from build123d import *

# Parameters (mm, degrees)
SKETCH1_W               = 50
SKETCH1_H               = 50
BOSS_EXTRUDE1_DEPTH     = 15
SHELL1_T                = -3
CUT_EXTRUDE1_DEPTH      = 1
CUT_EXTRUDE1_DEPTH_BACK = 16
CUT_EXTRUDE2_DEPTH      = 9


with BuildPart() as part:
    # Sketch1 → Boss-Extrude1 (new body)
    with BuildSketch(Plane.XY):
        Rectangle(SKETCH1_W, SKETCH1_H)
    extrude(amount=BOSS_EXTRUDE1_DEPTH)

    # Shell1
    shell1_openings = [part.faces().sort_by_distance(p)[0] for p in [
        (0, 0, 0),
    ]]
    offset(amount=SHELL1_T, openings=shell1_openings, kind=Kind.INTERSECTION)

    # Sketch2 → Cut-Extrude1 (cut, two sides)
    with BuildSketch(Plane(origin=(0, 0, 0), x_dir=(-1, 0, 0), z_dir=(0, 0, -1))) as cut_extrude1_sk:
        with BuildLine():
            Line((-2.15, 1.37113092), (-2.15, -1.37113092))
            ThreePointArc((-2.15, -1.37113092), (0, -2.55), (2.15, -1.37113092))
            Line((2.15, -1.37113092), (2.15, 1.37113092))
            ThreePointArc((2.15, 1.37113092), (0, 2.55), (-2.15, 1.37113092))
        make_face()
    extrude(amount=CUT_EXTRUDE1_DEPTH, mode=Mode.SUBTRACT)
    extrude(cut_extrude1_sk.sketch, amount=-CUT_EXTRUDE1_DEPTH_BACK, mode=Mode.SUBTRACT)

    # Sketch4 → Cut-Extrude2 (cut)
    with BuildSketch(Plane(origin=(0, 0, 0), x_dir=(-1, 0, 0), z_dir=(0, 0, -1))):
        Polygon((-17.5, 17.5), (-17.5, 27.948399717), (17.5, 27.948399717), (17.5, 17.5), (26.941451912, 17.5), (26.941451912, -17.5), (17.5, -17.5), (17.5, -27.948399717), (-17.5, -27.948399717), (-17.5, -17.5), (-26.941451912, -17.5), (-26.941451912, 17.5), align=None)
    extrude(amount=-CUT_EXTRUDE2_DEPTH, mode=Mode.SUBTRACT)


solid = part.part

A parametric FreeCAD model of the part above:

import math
import FreeCAD as App
import Part
import Sketcher
from FreeCAD import Vector
Q = App.Units.Quantity


def faces_at(feature, points):
    """Names of the faces that lie closest to the given points."""
    faces = feature.Shape.Faces
    near = lambda p: min(range(len(faces)), key=lambda i: faces[i].distToShape(Part.Vertex(*p))[0])
    return sorted({f"Face{near(p) + 1}" for p in points})


def add_polygon(sketch, points):
    """Adds a closed chain of lines whose ends are joined by coincident constraints."""
    first, n = sketch.GeometryCount, len(points)
    for a, b in zip(points, points[1:] + points[:1]):
        sketch.addGeometry(Part.LineSegment(App.Vector(*a, 0), App.Vector(*b, 0)), False)
    for i in range(n):
        sketch.addConstraint(Sketcher.Constraint("Coincident", first + i, 2, first + (i + 1) % n, 1))

doc = App.newDocument("Part")
body = doc.addObject("PartDesign::Body", "Body")

# Sketch on XY plane
sketch1 = body.newObject("Sketcher::SketchObject", "Sketch")
sketch1.AttachmentSupport = (doc.getObject("XY_Plane"), [""])
sketch1.MapMode = "FlatFace"
add_polygon(sketch1, [(-25, 25), (-25, -25), (25, -25), (25, 25)])  # lines 0-3
sketch1.addConstraint([
    Sketcher.Constraint("Vertical", 0),
    Sketcher.Constraint("Horizontal", 1),
    Sketcher.Constraint("Vertical", 2),
    Sketcher.Constraint("Horizontal", 3),
    Sketcher.Constraint("Symmetric", 0, 2, 2, 2, -1, 1),
    Sketcher.Constraint("Equal", 3, 0),
    Sketcher.Constraint("DistanceX", 1, 1, 1, 2, Q("50 mm")),
])
pad1 = body.newObject("PartDesign::Pad", "Pad")
pad1.Profile = sketch1
pad1.Length = 15
doc.recompute()

thickness = body.newObject("PartDesign::Thickness", "Thickness")
thickness.Base = (pad1, faces_at(pad1, [(0, 0, 0)]))
thickness.Value = 3
thickness.Reversed = True
thickness.Join = "Intersection"

# Sketch on XY plane
sketch2 = body.newObject("Sketcher::SketchObject", "Sketch001")
sketch2.AttachmentSupport = (doc.getObject("XY_Plane"), [""])
sketch2.MapMode = "FlatFace"
sketch2.addGeometry([
    Part.LineSegment(Vector(2.15, 1.371131, 0), Vector(2.15, -1.371131, 0)),
    Part.ArcOfCircle(Part.Circle(Vector(0, 0, 0), Vector(0, 0, 1), 2.55), math.radians(-147.472904), math.radians(-32.527096)),
    Part.LineSegment(Vector(-2.15, -1.371131, 0), Vector(-2.15, 1.371131, 0)),
    Part.ArcOfCircle(Part.Circle(Vector(0, 0, 0), Vector(0, 0, 1), 2.55), math.radians(32.527096), math.radians(147.472904)),
], False)
sketch2.addConstraint([
    Sketcher.Constraint("Coincident", 0, 2, 1, 2),
    Sketcher.Constraint("Coincident", 1, 1, 2, 1),
    Sketcher.Constraint("Coincident", 2, 2, 3, 2),
    Sketcher.Constraint("Coincident", 3, 1, 0, 1),
    Sketcher.Constraint("Vertical", 0),
    Sketcher.Constraint("Vertical", 2),
    Sketcher.Constraint("Coincident", 1, 3, -1, 1),
    Sketcher.Constraint("Coincident", 3, 3, -1, 1),
    Sketcher.Constraint("Equal", 1, 3),
    Sketcher.Constraint("Horizontal", 0, 2, 1, 1),
    Sketcher.Constraint("Radius", 1, Q("2.55 mm")),
    Sketcher.Constraint("DistanceX", 1, 1, 0, 2, Q("4.3 mm")),
])
pocket1 = body.newObject("PartDesign::Pocket", "Pocket")
pocket1.Profile = sketch2
pocket1.Type = "ThroughAll"
pocket1.Midplane = True

# Sketch on XY plane
sketch3 = body.newObject("Sketcher::SketchObject", "Sketch002")
sketch3.AttachmentSupport = (doc.getObject("XY_Plane"), [""])
sketch3.MapMode = "FlatFace"
add_polygon(sketch3, [(17.5, 27.9484), (17.5, 17.5), (26.941452, 17.5), (26.941452, -17.5), (17.5, -17.5), (17.5, -27.9484), (-17.5, -27.9484), (-17.5, -17.5), (-26.941452, -17.5), (-26.941452, 17.5), (-17.5, 17.5), (-17.5, 27.9484)])  # lines 0-11
sketch3.addConstraint([
    Sketcher.Constraint("Vertical", 0),
    Sketcher.Constraint("Horizontal", 1),
    Sketcher.Constraint("Vertical", 2),
    Sketcher.Constraint("Horizontal", 3),
    Sketcher.Constraint("Vertical", 4),
    Sketcher.Constraint("Horizontal", 5),
    Sketcher.Constraint("Vertical", 6),
    Sketcher.Constraint("Horizontal", 7),
    Sketcher.Constraint("Vertical", 8),
    Sketcher.Constraint("Horizontal", 9),
    Sketcher.Constraint("Vertical", 10),
    Sketcher.Constraint("Horizontal", 11),
    Sketcher.Constraint("Symmetric", 0, 2, 6, 2, -1, 1),
    Sketcher.Constraint("Symmetric", 2, 2, 8, 2, -1, 1),
    Sketcher.Constraint("Symmetric", 4, 2, 10, 2, -1, 1),
    Sketcher.Constraint("Symmetric", 3, 2, 6, 2, -2),
    Sketcher.Constraint("Equal", 11, 2),
    Sketcher.Constraint("DistanceX", 5, 2, 5, 1, Q("35 mm")),
    Sketcher.Constraint("DistanceY", 0, 2, 0, 1, Q("10.4484 mm")),
    Sketcher.Constraint("DistanceX", 1, 1, 1, 2, Q("9.441452 mm")),
])
pocket2 = body.newObject("PartDesign::Pocket", "Pocket001")
pocket2.Profile = sketch3
pocket2.Length = 9
pocket2.Reversed = True

doc.recompute()
